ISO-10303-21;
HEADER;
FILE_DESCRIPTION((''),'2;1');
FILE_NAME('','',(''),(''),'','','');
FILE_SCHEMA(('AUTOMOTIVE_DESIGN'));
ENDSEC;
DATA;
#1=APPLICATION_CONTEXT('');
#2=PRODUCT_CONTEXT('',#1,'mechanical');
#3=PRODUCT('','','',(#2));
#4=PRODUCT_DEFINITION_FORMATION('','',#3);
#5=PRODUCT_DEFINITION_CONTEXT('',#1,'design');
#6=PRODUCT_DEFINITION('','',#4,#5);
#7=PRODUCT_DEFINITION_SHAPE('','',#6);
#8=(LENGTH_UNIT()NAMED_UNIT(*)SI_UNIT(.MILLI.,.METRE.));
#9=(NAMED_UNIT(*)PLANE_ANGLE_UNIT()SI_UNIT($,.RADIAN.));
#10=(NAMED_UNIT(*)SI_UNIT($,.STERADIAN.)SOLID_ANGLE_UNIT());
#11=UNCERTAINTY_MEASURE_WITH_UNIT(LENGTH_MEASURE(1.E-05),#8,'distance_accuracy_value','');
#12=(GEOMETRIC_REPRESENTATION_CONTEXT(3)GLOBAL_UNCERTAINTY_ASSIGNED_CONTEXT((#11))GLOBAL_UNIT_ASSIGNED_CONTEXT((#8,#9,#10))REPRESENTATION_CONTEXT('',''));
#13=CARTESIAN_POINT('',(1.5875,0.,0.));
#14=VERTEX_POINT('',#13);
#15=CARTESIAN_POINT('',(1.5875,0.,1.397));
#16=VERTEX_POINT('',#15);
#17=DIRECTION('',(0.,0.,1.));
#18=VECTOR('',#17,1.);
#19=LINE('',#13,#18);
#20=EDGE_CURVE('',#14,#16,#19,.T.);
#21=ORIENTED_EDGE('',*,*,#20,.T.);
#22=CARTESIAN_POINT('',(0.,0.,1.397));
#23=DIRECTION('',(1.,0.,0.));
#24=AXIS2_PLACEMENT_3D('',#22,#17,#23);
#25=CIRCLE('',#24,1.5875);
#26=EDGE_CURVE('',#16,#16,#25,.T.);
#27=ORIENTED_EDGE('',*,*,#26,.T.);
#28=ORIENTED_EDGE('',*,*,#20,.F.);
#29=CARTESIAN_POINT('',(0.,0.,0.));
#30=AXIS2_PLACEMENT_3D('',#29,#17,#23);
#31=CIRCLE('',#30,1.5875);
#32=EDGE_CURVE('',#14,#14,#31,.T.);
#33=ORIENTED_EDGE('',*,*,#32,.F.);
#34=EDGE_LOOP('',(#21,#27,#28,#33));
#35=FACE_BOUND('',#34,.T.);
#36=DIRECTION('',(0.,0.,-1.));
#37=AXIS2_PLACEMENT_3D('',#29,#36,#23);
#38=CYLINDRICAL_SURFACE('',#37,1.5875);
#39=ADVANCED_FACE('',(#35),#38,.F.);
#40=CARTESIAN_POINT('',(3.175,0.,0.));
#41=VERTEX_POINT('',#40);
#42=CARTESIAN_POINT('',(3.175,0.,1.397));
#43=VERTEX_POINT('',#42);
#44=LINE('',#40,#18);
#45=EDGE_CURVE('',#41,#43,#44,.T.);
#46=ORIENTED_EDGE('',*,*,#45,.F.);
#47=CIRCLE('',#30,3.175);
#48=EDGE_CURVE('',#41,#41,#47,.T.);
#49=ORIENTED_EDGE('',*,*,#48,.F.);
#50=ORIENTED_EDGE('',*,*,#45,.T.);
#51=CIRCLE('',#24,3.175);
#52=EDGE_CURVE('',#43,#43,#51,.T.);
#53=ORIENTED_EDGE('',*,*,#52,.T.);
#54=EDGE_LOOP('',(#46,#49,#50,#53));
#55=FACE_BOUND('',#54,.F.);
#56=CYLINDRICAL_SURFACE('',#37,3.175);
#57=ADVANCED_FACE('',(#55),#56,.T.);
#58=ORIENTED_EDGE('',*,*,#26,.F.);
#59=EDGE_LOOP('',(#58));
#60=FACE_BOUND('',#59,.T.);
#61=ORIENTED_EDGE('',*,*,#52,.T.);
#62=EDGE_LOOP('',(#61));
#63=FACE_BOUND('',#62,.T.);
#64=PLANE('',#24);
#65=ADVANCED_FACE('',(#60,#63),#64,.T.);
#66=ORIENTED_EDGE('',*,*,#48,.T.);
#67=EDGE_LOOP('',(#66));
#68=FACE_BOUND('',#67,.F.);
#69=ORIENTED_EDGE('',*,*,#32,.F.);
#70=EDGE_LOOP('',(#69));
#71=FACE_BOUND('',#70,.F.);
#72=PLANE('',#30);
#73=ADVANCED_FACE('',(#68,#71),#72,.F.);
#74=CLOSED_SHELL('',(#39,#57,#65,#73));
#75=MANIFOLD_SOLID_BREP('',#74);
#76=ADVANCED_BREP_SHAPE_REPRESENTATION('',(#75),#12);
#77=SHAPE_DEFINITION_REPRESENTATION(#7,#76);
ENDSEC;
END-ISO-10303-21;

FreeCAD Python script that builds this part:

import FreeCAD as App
import Part
import Sketcher
from FreeCAD import Vector
Q = App.Units.Quantity

doc = App.newDocument("Part")
params = doc.addObject("Spreadsheet::Sheet", "Params")
for row, (alias, value) in enumerate([
    ("sketch1_diameter", "0.25 in"),
    ("sketch1_diameter2", "0.125 in"),
    ("pad1_length", "0.055 in"),
], start=1):
    params.set(f"A{row}", alias)
    params.set(f"B{row}", "=" + value)
    params.setAlias(f"B{row}", alias)

body = doc.addObject("PartDesign::Body", "Body")

sketch1 = body.newObject("Sketcher::SketchObject", "Sketch")
sketch1.AttachmentSupport = (doc.getObject("XY_Plane"), [""])
sketch1.MapMode = "FlatFace"
sketch1.addGeometry(Part.Circle(Vector(0, 0, 0), Vector(0, 0, 1), 3.175), False)
sketch1.addGeometry(Part.Circle(Vector(0, 0, 0), Vector(0, 0, 1), 1.5875), False)
sketch1.addConstraint(Sketcher.Constraint("Coincident", 0, 3, -1, 1))
sketch1.addConstraint(Sketcher.Constraint("Coincident", 1, 3, -1, 1))
sketch1.addConstraint(Sketcher.Constraint("Diameter", 0, Q("0.25 in")))
sketch1.addConstraint(Sketcher.Constraint("Diameter", 1, Q("0.125 in")))
sketch1.setExpression("Constraints[2]", "Params.sketch1_diameter")
sketch1.setExpression("Constraints[3]", "Params.sketch1_diameter2")
pad1 = body.newObject("PartDesign::Pad", "Pad")
pad1.Profile = sketch1
pad1.setExpression("Length", "Params.pad1_length")

doc.recompute()
